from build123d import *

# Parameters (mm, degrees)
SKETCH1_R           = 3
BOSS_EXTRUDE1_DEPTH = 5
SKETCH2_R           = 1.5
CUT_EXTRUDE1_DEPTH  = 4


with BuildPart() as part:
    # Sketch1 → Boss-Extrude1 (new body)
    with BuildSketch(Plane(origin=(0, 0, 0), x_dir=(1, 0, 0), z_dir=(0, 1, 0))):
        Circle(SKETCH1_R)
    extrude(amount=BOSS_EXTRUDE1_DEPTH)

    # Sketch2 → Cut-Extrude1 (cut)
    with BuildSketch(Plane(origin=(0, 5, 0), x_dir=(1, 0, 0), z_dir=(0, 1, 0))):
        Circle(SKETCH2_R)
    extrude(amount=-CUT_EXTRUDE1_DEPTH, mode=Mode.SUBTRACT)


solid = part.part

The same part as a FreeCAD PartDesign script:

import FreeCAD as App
import Part
import Sketcher
from FreeCAD import Vector

doc = App.newDocument("Part")
params = doc.addObject("Spreadsheet::Sheet", "Params")
for row, (alias, value) in enumerate([
    ("sketch1_diameter", "6 mm"),
    ("pad1_length", "5 mm"),
    ("sketch2_diameter", "3 mm"),
    ("pocket1_length", "4 mm"),
], start=1):
    params.set(f"A{row}", alias)
    params.set(f"B{row}", "=" + value)
    params.setAlias(f"B{row}", alias)

body = doc.addObject("PartDesign::Body", "Body")

# Sketch on XZ plane
sketch1 = body.newObject("Sketcher::SketchObject", "Sketch")
sketch1.AttachmentSupport = (doc.getObject("XZ_Plane"), [""])
sketch1.MapMode = "FlatFace"
sketch1.addGeometry(Part.Circle(Vector(0, 0, 0), Vector(0, 0, 1), 3), False)
sketch1.addConstraint([
    Sketcher.Constraint("Coincident", 0, 3, -1, 1),
    Sketcher.Constraint("Diameter", 0, 6.0),
])
sketch1.setExpression("Constraints[1]", "Params.sketch1_diameter")
pad1 = body.newObject("PartDesign::Pad", "Pad")
pad1.Profile = sketch1
pad1.setExpression("Length", "Params.pad1_length")
pad1.Reversed = True

# Sketch on XZ plane
sketch2 = body.newObject("Sketcher::SketchObject", "Sketch001")
sketch2.AttachmentSupport = (doc.getObject("XZ_Plane"), [""])
sketch2.MapMode = "FlatFace"
sketch2.AttachmentOffset = App.Placement(Vector(0, 0, -5), App.Rotation())
sketch2.addGeometry(Part.Circle(Vector(0, 0, 0), Vector(0, 0, 1), 1.5), False)
sketch2.addConstraint([
    Sketcher.Constraint("Coincident", 0, 3, -1, 1),
    Sketcher.Constraint("Diameter", 0, 3.0),
])
sketch2.setExpression("Constraints[1]", "Params.sketch2_diameter")
pocket1 = body.newObject("PartDesign::Pocket", "Pocket")
pocket1.Profile = sketch2
pocket1.setExpression("Length", "Params.pocket1_length")
pocket1.Reversed = True

doc.recompute()
